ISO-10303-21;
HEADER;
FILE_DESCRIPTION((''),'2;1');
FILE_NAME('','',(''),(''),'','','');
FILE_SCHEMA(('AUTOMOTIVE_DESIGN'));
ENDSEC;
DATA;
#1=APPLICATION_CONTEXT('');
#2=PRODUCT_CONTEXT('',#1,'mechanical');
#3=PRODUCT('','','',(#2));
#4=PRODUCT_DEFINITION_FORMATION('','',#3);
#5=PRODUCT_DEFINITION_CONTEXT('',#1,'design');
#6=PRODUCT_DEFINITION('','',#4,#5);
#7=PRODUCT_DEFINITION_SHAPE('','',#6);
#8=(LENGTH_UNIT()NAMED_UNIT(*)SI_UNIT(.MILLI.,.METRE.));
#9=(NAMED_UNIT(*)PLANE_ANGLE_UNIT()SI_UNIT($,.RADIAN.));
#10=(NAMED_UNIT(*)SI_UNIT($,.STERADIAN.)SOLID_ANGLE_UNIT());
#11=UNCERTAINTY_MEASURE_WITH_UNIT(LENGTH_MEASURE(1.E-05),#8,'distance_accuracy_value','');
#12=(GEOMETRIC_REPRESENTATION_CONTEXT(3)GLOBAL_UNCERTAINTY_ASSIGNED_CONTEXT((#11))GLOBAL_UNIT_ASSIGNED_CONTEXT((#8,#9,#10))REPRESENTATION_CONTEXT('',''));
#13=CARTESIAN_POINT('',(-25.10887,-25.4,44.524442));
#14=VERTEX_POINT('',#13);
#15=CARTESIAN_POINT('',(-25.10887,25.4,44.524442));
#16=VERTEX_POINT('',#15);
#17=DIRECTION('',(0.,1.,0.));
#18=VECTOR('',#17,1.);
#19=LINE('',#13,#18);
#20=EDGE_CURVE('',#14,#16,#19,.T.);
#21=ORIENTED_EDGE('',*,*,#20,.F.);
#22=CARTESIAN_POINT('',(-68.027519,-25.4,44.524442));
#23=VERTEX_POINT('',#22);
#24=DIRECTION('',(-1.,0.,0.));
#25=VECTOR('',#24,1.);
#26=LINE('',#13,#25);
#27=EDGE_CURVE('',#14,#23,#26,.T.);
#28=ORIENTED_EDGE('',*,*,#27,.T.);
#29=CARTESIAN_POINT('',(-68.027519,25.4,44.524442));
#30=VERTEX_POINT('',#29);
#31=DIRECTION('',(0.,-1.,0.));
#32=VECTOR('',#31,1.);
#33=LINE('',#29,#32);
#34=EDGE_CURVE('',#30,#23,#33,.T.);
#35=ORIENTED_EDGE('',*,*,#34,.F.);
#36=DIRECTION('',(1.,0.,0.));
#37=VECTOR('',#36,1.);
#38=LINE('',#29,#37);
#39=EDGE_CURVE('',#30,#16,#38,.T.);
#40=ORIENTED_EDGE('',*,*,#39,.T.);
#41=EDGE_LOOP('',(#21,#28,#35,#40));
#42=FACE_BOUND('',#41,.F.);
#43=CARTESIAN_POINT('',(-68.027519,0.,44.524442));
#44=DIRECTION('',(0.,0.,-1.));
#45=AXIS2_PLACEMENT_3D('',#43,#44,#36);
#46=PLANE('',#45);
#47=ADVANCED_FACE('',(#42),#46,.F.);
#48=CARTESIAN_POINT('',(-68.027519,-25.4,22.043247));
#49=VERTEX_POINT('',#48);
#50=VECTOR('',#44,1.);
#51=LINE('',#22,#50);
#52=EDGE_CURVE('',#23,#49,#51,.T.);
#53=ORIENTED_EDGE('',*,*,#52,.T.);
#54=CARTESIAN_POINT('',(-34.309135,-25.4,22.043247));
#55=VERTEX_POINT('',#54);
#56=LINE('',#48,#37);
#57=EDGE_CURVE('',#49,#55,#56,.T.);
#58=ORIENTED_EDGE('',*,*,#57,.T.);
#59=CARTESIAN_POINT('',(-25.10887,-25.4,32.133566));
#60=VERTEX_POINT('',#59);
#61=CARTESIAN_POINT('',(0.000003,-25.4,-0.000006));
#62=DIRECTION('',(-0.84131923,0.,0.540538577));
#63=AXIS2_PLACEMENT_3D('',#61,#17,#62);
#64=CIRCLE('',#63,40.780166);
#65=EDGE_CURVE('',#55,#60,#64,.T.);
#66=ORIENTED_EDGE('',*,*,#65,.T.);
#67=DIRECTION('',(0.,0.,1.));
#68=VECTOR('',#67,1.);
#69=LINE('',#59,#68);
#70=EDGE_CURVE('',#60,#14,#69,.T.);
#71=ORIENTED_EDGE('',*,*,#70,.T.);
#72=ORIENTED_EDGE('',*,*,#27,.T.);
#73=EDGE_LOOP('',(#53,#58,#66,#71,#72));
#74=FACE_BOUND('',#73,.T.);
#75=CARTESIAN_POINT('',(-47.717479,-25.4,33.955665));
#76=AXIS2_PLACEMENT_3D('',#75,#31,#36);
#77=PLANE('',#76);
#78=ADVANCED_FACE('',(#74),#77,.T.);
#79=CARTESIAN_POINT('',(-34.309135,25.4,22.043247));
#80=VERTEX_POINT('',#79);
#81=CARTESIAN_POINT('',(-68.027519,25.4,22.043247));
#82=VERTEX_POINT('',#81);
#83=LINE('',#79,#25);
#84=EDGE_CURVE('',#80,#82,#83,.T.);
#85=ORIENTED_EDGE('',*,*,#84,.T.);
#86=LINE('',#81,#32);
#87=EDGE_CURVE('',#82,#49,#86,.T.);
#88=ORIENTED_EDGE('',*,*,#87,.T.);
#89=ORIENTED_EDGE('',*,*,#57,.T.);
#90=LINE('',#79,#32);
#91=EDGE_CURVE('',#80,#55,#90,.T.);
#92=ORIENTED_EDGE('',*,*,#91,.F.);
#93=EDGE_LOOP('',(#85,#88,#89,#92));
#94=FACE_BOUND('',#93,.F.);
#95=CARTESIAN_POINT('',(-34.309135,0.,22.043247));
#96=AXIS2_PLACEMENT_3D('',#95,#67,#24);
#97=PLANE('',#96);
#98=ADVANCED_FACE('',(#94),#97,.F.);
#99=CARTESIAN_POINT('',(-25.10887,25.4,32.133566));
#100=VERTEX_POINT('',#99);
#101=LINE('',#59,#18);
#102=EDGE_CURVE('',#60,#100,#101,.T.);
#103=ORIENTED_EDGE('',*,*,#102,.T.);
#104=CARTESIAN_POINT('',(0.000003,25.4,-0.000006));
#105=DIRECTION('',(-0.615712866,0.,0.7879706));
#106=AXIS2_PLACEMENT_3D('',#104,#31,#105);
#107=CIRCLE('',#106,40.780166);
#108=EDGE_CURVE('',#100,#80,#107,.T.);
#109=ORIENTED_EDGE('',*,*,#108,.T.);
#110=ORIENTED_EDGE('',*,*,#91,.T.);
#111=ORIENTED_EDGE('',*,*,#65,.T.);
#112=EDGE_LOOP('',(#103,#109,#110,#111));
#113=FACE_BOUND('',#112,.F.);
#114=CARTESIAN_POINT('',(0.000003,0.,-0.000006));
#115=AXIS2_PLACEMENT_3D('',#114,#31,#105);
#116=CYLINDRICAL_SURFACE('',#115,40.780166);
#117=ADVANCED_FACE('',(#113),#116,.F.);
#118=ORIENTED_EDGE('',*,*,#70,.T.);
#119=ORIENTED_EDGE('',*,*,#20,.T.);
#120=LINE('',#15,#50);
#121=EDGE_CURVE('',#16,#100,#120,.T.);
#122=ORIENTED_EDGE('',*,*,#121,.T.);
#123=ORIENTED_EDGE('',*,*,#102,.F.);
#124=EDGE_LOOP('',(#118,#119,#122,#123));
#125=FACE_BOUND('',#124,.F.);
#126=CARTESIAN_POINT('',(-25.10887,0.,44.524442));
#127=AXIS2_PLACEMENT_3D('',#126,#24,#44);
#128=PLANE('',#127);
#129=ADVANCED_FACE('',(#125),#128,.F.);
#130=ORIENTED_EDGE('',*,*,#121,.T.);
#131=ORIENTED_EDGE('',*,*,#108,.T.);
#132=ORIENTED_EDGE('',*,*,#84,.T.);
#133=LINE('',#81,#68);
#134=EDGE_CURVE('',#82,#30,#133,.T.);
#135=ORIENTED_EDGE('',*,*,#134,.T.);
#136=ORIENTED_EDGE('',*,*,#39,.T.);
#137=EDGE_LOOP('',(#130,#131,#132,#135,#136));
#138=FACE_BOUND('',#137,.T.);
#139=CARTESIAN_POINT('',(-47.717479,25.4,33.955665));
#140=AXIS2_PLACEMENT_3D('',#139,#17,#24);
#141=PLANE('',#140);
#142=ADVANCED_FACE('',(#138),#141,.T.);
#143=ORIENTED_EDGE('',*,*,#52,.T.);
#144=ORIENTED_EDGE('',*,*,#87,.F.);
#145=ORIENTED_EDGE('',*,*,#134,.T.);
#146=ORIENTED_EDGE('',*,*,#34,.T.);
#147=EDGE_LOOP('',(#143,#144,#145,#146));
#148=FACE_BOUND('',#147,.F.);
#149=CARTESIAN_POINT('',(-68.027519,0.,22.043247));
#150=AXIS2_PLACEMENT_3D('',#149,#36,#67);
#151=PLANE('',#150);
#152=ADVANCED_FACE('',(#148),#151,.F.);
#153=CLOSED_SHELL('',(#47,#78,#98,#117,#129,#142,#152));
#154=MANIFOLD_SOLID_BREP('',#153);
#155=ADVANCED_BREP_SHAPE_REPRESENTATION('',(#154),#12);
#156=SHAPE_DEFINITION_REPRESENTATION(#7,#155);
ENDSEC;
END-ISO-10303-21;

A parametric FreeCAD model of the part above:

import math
import FreeCAD as App
import Part
import Sketcher

V = App.Vector
Q = App.Units.Quantity

doc = App.newDocument("Part")
body = doc.addObject("PartDesign::Body", "Body")

# Sketch on XZ plane
sketch1 = doc.addObject("Sketcher::SketchObject", "Sketch")
body.addObject(sketch1)
sketch1.AttachmentSupport = (doc.XZ_Plane, [""])
sketch1.MapMode = "FlatFace"
sketch1.addGeometry([
    Part.LineSegment(V(-25, 45, 0), V(-68, 45, 0)),  # 0
    Part.LineSegment(V(-68, 45, 0), V(-68, 22, 0)),  # 1
    Part.LineSegment(V(-68, 22, 0), V(-34, 22, 0)),  # 2
    Part.ArcOfCircle(Part.Circle(V(0, 0, 0), V(0, 0, 1), 41), math.radians(128), math.radians(147.28)),  # 3
    Part.LineSegment(V(-25, 32, 0), V(-25, 45, 0)),  # 4
], False)
sketch1.addConstraint([
    Sketcher.Constraint("Coincident", 0, 2, 1, 1),
    Sketcher.Constraint("Coincident", 1, 2, 2, 1),
    Sketcher.Constraint("Coincident", 2, 2, 3, 2),
    Sketcher.Constraint("Coincident", 3, 1, 4, 1),
    Sketcher.Constraint("Coincident", 4, 2, 0, 1),
    Sketcher.Constraint("Horizontal", 0),
    Sketcher.Constraint("Vertical", 1),
    Sketcher.Constraint("Horizontal", 2),
    Sketcher.Constraint("Vertical", 4),
    Sketcher.Constraint("Coincident", 3, 3, -1, 1),
    Sketcher.Constraint("Radius", 3, 40.780166),
    Sketcher.Constraint("DistanceX", 0, 2, 0, 1, 42.918649),
    Sketcher.Constraint("DistanceX", 2, 1, 2, 2, 33.718384),
    Sketcher.Constraint("DistanceY", 1, 2, 1, 1, 22.481195),
    Sketcher.Constraint("DistanceY", 4, 1, 4, 2, 12.390876),
])
pad1 = doc.addObject("PartDesign::Pad", "Pad")
body.addObject(pad1)
pad1.Profile = sketch1
pad1.Length = Q("1 in")

# Sketch on XZ plane
sketch2 = doc.addObject("Sketcher::SketchObject", "Sketch001")
body.addObject(sketch2)
sketch2.AttachmentSupport = (doc.XZ_Plane, [""])
sketch2.MapMode = "FlatFace"
sketch2.addGeometry([
    Part.LineSegment(V(-68, 45, 0), V(-25, 45, 0)),  # 0
    Part.LineSegment(V(-25, 45, 0), V(-25, 32, 0)),  # 1
    Part.ArcOfCircle(Part.Circle(V(0, 0, 0), V(0, 0, 1), 41), math.radians(128), math.radians(147.28)),  # 2
    Part.LineSegment(V(-34, 22, 0), V(-68, 22, 0)),  # 3
    Part.LineSegment(V(-68, 22, 0), V(-68, 45, 0)),  # 4
], False)
sketch2.addConstraint([
    Sketcher.Constraint("Coincident", 0, 2, 1, 1),
    Sketcher.Constraint("Coincident", 1, 2, 2, 1),
    Sketcher.Constraint("Coincident", 2, 2, 3, 1),
    Sketcher.Constraint("Coincident", 3, 2, 4, 1),
    Sketcher.Constraint("Coincident", 4, 2, 0, 1),
    Sketcher.Constraint("Horizontal", 0),
    Sketcher.Constraint("Vertical", 1),
    Sketcher.Constraint("Horizontal", 3),
    Sketcher.Constraint("Vertical", 4),
    Sketcher.Constraint("Coincident", 2, 3, -1, 1),
    Sketcher.Constraint("Radius", 2, 40.780166),
    Sketcher.Constraint("DistanceX", 0, 1, 0, 2, 42.918649),
    Sketcher.Constraint("DistanceX", 3, 2, 3, 1, 33.718384),
    Sketcher.Constraint("DistanceY", 1, 2, 1, 1, 12.390876),
    Sketcher.Constraint("DistanceY", 4, 1, 4, 2, 22.481195),
])
pad2 = doc.addObject("PartDesign::Pad", "Pad001")
body.addObject(pad2)
pad2.Profile = sketch2
pad2.Length = Q("1 in")
pad2.Reversed = True

doc.recompute()
